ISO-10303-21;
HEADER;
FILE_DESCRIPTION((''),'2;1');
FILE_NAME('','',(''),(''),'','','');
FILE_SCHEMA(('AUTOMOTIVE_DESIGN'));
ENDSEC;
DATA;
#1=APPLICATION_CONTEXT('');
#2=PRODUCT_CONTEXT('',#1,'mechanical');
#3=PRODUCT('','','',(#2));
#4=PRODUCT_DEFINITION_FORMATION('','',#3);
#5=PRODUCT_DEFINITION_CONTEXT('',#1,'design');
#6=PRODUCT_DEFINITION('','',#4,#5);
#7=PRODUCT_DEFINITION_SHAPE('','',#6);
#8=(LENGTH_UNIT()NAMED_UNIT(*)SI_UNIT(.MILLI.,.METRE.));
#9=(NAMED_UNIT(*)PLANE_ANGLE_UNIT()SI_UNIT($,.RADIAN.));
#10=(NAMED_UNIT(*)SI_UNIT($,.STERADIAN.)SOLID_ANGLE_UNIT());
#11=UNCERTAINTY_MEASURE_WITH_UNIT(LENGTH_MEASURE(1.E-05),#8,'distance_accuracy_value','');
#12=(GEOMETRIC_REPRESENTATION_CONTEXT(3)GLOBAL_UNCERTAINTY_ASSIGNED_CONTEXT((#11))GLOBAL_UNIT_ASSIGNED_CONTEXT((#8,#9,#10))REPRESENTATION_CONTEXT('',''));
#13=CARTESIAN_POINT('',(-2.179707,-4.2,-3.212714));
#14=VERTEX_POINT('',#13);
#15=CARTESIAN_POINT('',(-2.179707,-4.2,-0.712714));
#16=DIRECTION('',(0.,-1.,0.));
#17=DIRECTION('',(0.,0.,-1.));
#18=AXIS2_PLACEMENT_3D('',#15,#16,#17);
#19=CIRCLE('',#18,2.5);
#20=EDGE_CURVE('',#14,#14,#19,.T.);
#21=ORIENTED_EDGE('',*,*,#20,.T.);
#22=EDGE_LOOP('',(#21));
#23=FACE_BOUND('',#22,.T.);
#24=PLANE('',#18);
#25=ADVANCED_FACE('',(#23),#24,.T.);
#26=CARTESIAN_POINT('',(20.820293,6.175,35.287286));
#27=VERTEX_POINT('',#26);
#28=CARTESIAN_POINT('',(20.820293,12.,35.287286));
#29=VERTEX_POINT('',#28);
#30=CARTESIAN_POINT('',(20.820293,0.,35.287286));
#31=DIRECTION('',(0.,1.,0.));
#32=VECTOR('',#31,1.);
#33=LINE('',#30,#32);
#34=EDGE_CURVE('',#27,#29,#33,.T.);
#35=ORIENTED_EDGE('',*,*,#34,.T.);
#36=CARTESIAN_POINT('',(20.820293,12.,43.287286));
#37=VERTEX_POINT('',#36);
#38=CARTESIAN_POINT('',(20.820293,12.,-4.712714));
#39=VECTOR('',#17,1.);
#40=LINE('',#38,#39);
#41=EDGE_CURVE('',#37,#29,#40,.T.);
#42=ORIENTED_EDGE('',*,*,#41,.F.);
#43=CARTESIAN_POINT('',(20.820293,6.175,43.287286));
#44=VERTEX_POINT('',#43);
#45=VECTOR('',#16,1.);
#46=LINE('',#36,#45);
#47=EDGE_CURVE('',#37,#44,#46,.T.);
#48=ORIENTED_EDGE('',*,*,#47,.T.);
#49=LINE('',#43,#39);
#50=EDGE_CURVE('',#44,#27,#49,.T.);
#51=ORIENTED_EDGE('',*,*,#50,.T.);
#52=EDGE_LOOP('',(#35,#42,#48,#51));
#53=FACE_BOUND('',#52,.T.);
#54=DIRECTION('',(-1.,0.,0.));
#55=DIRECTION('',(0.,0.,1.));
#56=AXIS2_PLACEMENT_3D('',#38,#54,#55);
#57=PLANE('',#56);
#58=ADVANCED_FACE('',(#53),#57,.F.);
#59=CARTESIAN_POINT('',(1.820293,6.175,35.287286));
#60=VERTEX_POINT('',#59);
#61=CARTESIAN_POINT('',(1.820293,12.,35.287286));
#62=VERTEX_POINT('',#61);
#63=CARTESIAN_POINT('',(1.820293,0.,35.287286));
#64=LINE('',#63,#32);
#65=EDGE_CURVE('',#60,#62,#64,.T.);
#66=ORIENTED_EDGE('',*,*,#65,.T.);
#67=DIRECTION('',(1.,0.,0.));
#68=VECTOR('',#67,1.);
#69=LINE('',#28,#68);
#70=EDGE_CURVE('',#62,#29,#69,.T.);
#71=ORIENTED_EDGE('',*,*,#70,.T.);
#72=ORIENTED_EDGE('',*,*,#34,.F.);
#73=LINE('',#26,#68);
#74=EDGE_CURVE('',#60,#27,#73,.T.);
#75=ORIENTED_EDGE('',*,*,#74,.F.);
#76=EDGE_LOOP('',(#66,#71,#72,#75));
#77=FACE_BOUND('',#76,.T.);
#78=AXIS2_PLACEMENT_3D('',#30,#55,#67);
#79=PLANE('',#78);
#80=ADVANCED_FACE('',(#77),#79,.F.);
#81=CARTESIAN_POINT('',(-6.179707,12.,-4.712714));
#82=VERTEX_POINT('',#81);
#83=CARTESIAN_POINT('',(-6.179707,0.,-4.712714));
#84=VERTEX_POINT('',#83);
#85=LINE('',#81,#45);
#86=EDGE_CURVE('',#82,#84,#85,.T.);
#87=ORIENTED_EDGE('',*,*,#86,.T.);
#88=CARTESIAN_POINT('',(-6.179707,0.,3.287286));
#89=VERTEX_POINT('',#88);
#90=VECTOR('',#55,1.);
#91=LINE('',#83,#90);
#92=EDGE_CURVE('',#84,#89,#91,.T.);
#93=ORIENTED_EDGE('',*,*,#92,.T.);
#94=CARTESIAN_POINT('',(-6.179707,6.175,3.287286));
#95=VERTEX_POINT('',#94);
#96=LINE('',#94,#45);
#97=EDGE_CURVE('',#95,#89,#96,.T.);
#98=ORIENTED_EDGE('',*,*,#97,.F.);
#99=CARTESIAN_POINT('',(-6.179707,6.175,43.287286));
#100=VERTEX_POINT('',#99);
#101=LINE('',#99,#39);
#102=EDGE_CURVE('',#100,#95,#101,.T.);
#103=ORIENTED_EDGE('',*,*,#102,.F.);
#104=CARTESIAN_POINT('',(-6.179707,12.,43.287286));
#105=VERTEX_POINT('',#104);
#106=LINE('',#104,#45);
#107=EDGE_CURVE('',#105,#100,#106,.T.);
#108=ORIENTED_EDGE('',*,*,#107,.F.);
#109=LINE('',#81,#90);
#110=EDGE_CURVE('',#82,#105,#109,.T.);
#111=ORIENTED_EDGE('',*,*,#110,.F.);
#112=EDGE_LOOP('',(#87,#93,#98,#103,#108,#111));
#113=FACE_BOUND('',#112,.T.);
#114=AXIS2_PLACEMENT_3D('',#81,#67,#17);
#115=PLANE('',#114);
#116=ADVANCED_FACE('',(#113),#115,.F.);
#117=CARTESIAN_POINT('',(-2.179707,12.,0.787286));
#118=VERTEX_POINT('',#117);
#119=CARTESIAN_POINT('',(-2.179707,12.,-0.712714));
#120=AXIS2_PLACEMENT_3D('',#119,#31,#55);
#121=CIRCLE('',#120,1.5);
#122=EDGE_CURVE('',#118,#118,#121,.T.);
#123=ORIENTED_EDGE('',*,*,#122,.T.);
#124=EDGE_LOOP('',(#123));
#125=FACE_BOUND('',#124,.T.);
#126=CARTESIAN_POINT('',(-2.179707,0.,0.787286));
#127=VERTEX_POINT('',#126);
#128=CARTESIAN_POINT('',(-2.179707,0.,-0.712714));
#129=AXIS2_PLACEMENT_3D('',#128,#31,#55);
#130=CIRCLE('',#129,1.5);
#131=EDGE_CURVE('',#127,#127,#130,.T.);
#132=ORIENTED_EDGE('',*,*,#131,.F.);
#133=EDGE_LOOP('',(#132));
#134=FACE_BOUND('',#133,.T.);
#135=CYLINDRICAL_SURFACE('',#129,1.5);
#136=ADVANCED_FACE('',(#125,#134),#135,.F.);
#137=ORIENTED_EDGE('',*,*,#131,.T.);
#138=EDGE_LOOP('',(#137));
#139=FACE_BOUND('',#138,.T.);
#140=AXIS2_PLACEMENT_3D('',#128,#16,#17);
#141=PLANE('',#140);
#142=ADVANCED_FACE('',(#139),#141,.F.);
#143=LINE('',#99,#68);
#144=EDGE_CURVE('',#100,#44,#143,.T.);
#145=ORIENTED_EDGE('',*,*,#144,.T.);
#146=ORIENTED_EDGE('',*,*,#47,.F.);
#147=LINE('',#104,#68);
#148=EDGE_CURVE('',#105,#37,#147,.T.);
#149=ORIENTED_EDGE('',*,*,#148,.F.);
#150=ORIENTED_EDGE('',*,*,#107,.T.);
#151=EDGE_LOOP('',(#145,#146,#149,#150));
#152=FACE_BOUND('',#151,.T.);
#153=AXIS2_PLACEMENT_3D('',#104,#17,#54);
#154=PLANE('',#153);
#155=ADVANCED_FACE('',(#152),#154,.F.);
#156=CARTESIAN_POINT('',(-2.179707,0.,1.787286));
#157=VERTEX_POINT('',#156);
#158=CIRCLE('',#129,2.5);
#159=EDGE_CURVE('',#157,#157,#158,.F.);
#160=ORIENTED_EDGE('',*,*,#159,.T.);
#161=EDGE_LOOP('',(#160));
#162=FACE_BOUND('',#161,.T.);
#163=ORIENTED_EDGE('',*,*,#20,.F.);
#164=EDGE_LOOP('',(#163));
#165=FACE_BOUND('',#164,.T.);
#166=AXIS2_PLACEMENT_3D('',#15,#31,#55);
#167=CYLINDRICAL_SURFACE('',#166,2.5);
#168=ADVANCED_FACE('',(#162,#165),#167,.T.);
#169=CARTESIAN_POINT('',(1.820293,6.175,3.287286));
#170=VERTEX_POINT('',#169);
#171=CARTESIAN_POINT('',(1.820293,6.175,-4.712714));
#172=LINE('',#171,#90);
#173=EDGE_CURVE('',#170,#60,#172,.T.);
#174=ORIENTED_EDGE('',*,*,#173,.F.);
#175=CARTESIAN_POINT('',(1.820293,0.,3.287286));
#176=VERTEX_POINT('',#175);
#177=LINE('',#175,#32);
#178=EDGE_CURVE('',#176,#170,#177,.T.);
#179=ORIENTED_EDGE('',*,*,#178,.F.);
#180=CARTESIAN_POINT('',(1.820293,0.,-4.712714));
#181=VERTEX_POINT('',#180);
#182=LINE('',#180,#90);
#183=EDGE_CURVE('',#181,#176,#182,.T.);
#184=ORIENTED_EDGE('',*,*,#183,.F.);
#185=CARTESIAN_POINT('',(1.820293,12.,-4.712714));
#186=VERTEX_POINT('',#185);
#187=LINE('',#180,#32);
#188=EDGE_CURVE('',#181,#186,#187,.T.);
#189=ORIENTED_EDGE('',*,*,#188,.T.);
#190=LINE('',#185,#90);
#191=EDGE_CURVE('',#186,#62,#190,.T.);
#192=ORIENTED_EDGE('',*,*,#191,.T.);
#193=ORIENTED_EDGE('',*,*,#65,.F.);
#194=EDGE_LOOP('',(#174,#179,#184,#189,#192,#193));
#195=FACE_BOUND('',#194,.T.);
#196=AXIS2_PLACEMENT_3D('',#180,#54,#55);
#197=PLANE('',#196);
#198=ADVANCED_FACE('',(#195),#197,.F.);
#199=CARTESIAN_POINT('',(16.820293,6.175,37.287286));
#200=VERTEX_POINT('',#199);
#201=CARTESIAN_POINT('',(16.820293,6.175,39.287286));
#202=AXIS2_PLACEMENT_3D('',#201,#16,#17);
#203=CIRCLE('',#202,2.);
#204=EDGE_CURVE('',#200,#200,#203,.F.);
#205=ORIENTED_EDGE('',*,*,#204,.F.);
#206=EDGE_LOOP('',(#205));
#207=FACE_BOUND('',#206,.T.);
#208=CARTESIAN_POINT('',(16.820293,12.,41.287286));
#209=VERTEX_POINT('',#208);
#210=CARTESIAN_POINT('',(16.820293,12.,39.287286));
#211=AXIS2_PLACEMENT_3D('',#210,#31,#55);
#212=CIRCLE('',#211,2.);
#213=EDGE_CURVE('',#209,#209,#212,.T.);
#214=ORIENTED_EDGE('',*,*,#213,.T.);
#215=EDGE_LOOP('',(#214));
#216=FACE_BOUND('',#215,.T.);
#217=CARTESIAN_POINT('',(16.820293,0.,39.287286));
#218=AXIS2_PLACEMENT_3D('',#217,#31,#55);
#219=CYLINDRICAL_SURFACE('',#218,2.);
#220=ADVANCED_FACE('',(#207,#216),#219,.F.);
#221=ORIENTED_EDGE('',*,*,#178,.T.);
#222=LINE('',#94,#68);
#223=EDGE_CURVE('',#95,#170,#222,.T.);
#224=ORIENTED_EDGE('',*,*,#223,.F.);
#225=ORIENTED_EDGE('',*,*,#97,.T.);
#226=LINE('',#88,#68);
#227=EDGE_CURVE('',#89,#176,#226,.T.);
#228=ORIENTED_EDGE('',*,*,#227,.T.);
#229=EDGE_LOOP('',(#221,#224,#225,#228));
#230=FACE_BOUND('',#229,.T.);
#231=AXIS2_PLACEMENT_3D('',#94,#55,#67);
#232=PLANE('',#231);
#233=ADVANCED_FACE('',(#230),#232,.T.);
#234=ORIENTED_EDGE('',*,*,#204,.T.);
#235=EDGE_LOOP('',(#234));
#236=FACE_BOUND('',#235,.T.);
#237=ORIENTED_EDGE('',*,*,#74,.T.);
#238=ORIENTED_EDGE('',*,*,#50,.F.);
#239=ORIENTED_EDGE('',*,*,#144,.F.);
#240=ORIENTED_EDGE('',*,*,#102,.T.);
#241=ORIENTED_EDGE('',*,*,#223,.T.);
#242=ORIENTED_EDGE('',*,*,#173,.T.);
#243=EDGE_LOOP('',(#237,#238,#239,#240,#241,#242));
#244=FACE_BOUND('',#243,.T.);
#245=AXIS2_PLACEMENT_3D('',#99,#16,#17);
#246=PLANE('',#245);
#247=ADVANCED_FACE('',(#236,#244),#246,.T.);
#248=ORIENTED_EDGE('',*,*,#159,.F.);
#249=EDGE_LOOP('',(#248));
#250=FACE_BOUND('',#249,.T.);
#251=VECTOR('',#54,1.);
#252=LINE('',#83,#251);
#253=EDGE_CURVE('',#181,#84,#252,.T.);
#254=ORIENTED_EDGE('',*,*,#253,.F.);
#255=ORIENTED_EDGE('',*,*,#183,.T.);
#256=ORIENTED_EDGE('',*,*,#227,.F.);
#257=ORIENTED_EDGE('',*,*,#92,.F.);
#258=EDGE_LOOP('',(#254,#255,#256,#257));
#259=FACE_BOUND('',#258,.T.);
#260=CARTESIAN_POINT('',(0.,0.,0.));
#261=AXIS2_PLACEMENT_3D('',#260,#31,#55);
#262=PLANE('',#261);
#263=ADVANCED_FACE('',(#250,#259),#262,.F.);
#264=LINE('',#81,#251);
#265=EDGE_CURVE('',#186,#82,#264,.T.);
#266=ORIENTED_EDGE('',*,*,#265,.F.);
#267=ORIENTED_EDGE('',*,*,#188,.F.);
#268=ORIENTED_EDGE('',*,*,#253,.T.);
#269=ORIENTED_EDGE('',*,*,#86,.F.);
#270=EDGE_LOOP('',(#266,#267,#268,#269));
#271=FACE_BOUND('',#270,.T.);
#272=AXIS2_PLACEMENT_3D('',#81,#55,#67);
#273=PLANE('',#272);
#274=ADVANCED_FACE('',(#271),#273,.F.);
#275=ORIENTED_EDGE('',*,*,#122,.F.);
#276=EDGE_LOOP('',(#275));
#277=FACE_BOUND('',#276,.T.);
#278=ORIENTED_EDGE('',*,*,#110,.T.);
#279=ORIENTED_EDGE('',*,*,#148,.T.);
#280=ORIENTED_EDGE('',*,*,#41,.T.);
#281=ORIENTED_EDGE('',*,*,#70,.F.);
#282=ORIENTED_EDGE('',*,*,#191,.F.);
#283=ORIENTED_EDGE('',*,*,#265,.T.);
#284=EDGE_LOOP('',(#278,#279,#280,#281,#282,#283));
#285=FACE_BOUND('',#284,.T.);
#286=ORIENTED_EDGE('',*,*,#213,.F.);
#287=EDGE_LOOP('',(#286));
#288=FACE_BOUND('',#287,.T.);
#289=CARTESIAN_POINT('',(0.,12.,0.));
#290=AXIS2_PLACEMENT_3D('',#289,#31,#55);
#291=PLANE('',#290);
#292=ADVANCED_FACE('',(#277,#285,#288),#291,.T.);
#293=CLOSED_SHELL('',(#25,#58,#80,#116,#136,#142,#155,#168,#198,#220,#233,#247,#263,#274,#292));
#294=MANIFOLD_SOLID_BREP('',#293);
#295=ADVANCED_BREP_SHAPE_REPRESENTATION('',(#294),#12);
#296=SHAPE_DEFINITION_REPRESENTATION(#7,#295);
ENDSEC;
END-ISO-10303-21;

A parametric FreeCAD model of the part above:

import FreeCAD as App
import Part
import Sketcher

V = App.Vector
Q = App.Units.Quantity

doc = App.newDocument("Part")
body = doc.addObject("PartDesign::Body", "Body")

# Sketch on XZ plane
sketch1 = doc.addObject("Sketcher::SketchObject", "Sketch")
body.addObject(sketch1)
sketch1.AttachmentSupport = (doc.XZ_Plane, [""])
sketch1.MapMode = "FlatFace"
sketch1.addGeometry([
    Part.LineSegment(V(-6, -5, 0), V(-6, 43, 0)),
    Part.LineSegment(V(-6, 43, 0), V(21, 43, 0)),
    Part.LineSegment(V(21, 43, 0), V(21, -5, 0)),
    Part.LineSegment(V(21, -5, 0), V(-6, -5, 0)),
], False)
sketch1.addConstraint([
    Sketcher.Constraint("Coincident", 0, 2, 1, 1),
    Sketcher.Constraint("Coincident", 1, 2, 2, 1),
    Sketcher.Constraint("Coincident", 2, 2, 3, 1),
    Sketcher.Constraint("Coincident", 3, 2, 0, 1),
    Sketcher.Constraint("Vertical", 0),
    Sketcher.Constraint("Horizontal", 1),
    Sketcher.Constraint("Vertical", 2),
    Sketcher.Constraint("Horizontal", 3),
    Sketcher.Constraint("DistanceX", 1, 1, 1, 2, Q("27 mm")),
    Sketcher.Constraint("DistanceY", 0, 1, 0, 2, Q("48 mm")),
    Sketcher.Constraint("DistanceX", 0, 2, -1, 1, Q("6.179707 mm")),
    Sketcher.Constraint("DistanceY", -1, 1, 0, 2, Q("43.287286 mm")),
])
pad1 = doc.addObject("PartDesign::Pad", "Pad")
body.addObject(pad1)
pad1.Profile = sketch1
pad1.Length = 12
pad1.Reversed = True

# Sketch on XZ plane
sketch2 = doc.addObject("Sketcher::SketchObject", "Sketch001")
body.addObject(sketch2)
sketch2.AttachmentSupport = (doc.XZ_Plane, [""])
sketch2.MapMode = "FlatFace"
sketch2.AttachmentOffset = App.Placement(V(0, 0, -12), App.Rotation())
sketch2.addGeometry([
    Part.Circle(V(-2.2, -0.7, 0), V(0, 0, 1), 1.5),  # 0
    Part.Circle(V(16.8, 39.3, 0), V(0, 0, 1), 2),  # 1
    Part.LineSegment(V(1.8, -4.7, 0), V(1.8, 35.3, 0)),  # 2
    Part.LineSegment(V(1.8, 35.3, 0), V(20.8, 35.3, 0)),  # 3
    Part.LineSegment(V(20.8, 35.3, 0), V(20.8, -4.7, 0)),  # 4
    Part.LineSegment(V(20.8, -4.7, 0), V(1.8, -4.7, 0)),  # 5
], False)
sketch2.addConstraint([
    Sketcher.Constraint("Coincident", 2, 2, 3, 1),
    Sketcher.Constraint("Coincident", 3, 2, 4, 1),
    Sketcher.Constraint("Coincident", 4, 2, 5, 1),
    Sketcher.Constraint("Coincident", 5, 2, 2, 1),
    Sketcher.Constraint("Vertical", 2),
    Sketcher.Constraint("Horizontal", 3),
    Sketcher.Constraint("Vertical", 4),
    Sketcher.Constraint("Horizontal", 5),
    Sketcher.Constraint("Diameter", 0, Q("3 mm")),
    Sketcher.Constraint("Diameter", 1, Q("4 mm")),
    Sketcher.Constraint("DistanceX", 3, 1, 3, 2, Q("19 mm")),
    Sketcher.Constraint("DistanceY", 2, 1, 2, 2, Q("40 mm")),
    Sketcher.Constraint("DistanceX", 0, 3, 1, 3, Q("19 mm")),
    Sketcher.Constraint("DistanceY", 0, 3, 1, 3, Q("40 mm")),
    Sketcher.Constraint("DistanceX", 2, 2, 1, 3, Q("15 mm")),
    Sketcher.Constraint("DistanceY", 2, 2, 1, 3, Q("4 mm")),
    Sketcher.Constraint("DistanceX", 0, 3, -1, 1, Q("2.179707 mm")),
    Sketcher.Constraint("DistanceY", 0, 3, -1, 1, Q("0.712714 mm")),
])
pocket1 = doc.addObject("PartDesign::Pocket", "Pocket")
body.addObject(pocket1)
pocket1.Profile = sketch2
pocket1.Type = "ThroughAll"
pocket1.Reversed = True

# Sketch on YZ plane
sketch3 = doc.addObject("Sketcher::SketchObject", "Sketch002")
body.addObject(sketch3)
sketch3.AttachmentSupport = (doc.YZ_Plane, [""])
sketch3.MapMode = "FlatFace"
sketch3.AttachmentOffset = App.Placement(V(0, 0, 20.820293), App.Rotation())
sketch3.addGeometry([
    Part.LineSegment(V(6, 43, 0), V(0, 43, 0)),
    Part.LineSegment(V(0, 43, 0), V(0, 3, 0)),
    Part.LineSegment(V(0, 3, 0), V(6, 3, 0)),
    Part.LineSegment(V(6, 3, 0), V(6, 43, 0)),
], False)
sketch3.addConstraint([
    Sketcher.Constraint("Coincident", 0, 2, 1, 1),
    Sketcher.Constraint("Coincident", 1, 2, 2, 1),
    Sketcher.Constraint("Coincident", 2, 2, 3, 1),
    Sketcher.Constraint("Coincident", 3, 2, 0, 1),
    Sketcher.Constraint("Horizontal", 0),
    Sketcher.Constraint("Vertical", 1),
    Sketcher.Constraint("Horizontal", 2),
    Sketcher.Constraint("Vertical", 3),
    Sketcher.Constraint("PointOnObject", 0, 2, -2),
    Sketcher.Constraint("DistanceY", 1, 2, 1, 1, Q("40 mm")),
    Sketcher.Constraint("DistanceX", 0, 2, 0, 1, Q("6.175 mm")),
    Sketcher.Constraint("DistanceY", -1, 1, 0, 2, Q("43.287286 mm")),
])
pocket2 = doc.addObject("PartDesign::Pocket", "Pocket001")
body.addObject(pocket2)
pocket2.Profile = sketch3
pocket2.Type = "ThroughAll"

# Sketch on XZ plane
sketch4 = doc.addObject("Sketcher::SketchObject", "Sketch003")
body.addObject(sketch4)
sketch4.AttachmentSupport = (doc.XZ_Plane, [""])
sketch4.MapMode = "FlatFace"
sketch4.addGeometry(Part.Circle(V(-2.2, -0.7, 0), V(0, 0, 1), 2.5), False)
sketch4.addConstraint([
    Sketcher.Constraint("Diameter", 0, Q("5 mm")),
    Sketcher.Constraint("DistanceX", 0, 3, -1, 1, Q("2.179707 mm")),
    Sketcher.Constraint("DistanceY", 0, 3, -1, 1, Q("0.712714 mm")),
])
pad2 = doc.addObject("PartDesign::Pad", "Pad001")
body.addObject(pad2)
pad2.Profile = sketch4
pad2.Length = 4.2

doc.recompute()
